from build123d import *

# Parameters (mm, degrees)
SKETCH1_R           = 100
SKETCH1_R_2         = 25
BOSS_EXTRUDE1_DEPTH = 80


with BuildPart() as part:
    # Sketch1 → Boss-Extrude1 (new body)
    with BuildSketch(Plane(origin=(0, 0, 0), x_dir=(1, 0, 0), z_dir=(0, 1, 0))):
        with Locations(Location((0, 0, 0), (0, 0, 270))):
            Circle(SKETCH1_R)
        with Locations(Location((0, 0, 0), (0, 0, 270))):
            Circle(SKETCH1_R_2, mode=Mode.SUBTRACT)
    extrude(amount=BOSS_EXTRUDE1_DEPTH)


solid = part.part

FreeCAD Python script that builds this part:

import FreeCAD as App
import Part
import Sketcher
Q = App.Units.Quantity

doc = App.newDocument("Part")
body = doc.addObject("PartDesign::Body", "Body")

# Sketch on XZ plane
sketch1 = body.newObject("Sketcher::SketchObject", "Sketch")
sketch1.AttachmentSupport = (doc.getObject("XZ_Plane"), [""])
sketch1.MapMode = "FlatFace"
sketch1.addGeometry(Part.Circle(App.Vector(0, 0, 0), App.Vector(0, 0, 1), 100), False)
sketch1.addGeometry(Part.Circle(App.Vector(0, 0, 0), App.Vector(0, 0, 1), 25), False)
sketch1.addConstraint(Sketcher.Constraint("Coincident", 0, 3, -1, 1))
sketch1.addConstraint(Sketcher.Constraint("Coincident", 1, 3, -1, 1))
sketch1.addConstraint(Sketcher.Constraint("Diameter", 0, Q("200 mm")))
sketch1.addConstraint(Sketcher.Constraint("Diameter", 1, Q("50 mm")))
pad1 = body.newObject("PartDesign::Pad", "Pad")
pad1.Profile = sketch1
pad1.Length = 80
pad1.Reversed = True

doc.recompute()
